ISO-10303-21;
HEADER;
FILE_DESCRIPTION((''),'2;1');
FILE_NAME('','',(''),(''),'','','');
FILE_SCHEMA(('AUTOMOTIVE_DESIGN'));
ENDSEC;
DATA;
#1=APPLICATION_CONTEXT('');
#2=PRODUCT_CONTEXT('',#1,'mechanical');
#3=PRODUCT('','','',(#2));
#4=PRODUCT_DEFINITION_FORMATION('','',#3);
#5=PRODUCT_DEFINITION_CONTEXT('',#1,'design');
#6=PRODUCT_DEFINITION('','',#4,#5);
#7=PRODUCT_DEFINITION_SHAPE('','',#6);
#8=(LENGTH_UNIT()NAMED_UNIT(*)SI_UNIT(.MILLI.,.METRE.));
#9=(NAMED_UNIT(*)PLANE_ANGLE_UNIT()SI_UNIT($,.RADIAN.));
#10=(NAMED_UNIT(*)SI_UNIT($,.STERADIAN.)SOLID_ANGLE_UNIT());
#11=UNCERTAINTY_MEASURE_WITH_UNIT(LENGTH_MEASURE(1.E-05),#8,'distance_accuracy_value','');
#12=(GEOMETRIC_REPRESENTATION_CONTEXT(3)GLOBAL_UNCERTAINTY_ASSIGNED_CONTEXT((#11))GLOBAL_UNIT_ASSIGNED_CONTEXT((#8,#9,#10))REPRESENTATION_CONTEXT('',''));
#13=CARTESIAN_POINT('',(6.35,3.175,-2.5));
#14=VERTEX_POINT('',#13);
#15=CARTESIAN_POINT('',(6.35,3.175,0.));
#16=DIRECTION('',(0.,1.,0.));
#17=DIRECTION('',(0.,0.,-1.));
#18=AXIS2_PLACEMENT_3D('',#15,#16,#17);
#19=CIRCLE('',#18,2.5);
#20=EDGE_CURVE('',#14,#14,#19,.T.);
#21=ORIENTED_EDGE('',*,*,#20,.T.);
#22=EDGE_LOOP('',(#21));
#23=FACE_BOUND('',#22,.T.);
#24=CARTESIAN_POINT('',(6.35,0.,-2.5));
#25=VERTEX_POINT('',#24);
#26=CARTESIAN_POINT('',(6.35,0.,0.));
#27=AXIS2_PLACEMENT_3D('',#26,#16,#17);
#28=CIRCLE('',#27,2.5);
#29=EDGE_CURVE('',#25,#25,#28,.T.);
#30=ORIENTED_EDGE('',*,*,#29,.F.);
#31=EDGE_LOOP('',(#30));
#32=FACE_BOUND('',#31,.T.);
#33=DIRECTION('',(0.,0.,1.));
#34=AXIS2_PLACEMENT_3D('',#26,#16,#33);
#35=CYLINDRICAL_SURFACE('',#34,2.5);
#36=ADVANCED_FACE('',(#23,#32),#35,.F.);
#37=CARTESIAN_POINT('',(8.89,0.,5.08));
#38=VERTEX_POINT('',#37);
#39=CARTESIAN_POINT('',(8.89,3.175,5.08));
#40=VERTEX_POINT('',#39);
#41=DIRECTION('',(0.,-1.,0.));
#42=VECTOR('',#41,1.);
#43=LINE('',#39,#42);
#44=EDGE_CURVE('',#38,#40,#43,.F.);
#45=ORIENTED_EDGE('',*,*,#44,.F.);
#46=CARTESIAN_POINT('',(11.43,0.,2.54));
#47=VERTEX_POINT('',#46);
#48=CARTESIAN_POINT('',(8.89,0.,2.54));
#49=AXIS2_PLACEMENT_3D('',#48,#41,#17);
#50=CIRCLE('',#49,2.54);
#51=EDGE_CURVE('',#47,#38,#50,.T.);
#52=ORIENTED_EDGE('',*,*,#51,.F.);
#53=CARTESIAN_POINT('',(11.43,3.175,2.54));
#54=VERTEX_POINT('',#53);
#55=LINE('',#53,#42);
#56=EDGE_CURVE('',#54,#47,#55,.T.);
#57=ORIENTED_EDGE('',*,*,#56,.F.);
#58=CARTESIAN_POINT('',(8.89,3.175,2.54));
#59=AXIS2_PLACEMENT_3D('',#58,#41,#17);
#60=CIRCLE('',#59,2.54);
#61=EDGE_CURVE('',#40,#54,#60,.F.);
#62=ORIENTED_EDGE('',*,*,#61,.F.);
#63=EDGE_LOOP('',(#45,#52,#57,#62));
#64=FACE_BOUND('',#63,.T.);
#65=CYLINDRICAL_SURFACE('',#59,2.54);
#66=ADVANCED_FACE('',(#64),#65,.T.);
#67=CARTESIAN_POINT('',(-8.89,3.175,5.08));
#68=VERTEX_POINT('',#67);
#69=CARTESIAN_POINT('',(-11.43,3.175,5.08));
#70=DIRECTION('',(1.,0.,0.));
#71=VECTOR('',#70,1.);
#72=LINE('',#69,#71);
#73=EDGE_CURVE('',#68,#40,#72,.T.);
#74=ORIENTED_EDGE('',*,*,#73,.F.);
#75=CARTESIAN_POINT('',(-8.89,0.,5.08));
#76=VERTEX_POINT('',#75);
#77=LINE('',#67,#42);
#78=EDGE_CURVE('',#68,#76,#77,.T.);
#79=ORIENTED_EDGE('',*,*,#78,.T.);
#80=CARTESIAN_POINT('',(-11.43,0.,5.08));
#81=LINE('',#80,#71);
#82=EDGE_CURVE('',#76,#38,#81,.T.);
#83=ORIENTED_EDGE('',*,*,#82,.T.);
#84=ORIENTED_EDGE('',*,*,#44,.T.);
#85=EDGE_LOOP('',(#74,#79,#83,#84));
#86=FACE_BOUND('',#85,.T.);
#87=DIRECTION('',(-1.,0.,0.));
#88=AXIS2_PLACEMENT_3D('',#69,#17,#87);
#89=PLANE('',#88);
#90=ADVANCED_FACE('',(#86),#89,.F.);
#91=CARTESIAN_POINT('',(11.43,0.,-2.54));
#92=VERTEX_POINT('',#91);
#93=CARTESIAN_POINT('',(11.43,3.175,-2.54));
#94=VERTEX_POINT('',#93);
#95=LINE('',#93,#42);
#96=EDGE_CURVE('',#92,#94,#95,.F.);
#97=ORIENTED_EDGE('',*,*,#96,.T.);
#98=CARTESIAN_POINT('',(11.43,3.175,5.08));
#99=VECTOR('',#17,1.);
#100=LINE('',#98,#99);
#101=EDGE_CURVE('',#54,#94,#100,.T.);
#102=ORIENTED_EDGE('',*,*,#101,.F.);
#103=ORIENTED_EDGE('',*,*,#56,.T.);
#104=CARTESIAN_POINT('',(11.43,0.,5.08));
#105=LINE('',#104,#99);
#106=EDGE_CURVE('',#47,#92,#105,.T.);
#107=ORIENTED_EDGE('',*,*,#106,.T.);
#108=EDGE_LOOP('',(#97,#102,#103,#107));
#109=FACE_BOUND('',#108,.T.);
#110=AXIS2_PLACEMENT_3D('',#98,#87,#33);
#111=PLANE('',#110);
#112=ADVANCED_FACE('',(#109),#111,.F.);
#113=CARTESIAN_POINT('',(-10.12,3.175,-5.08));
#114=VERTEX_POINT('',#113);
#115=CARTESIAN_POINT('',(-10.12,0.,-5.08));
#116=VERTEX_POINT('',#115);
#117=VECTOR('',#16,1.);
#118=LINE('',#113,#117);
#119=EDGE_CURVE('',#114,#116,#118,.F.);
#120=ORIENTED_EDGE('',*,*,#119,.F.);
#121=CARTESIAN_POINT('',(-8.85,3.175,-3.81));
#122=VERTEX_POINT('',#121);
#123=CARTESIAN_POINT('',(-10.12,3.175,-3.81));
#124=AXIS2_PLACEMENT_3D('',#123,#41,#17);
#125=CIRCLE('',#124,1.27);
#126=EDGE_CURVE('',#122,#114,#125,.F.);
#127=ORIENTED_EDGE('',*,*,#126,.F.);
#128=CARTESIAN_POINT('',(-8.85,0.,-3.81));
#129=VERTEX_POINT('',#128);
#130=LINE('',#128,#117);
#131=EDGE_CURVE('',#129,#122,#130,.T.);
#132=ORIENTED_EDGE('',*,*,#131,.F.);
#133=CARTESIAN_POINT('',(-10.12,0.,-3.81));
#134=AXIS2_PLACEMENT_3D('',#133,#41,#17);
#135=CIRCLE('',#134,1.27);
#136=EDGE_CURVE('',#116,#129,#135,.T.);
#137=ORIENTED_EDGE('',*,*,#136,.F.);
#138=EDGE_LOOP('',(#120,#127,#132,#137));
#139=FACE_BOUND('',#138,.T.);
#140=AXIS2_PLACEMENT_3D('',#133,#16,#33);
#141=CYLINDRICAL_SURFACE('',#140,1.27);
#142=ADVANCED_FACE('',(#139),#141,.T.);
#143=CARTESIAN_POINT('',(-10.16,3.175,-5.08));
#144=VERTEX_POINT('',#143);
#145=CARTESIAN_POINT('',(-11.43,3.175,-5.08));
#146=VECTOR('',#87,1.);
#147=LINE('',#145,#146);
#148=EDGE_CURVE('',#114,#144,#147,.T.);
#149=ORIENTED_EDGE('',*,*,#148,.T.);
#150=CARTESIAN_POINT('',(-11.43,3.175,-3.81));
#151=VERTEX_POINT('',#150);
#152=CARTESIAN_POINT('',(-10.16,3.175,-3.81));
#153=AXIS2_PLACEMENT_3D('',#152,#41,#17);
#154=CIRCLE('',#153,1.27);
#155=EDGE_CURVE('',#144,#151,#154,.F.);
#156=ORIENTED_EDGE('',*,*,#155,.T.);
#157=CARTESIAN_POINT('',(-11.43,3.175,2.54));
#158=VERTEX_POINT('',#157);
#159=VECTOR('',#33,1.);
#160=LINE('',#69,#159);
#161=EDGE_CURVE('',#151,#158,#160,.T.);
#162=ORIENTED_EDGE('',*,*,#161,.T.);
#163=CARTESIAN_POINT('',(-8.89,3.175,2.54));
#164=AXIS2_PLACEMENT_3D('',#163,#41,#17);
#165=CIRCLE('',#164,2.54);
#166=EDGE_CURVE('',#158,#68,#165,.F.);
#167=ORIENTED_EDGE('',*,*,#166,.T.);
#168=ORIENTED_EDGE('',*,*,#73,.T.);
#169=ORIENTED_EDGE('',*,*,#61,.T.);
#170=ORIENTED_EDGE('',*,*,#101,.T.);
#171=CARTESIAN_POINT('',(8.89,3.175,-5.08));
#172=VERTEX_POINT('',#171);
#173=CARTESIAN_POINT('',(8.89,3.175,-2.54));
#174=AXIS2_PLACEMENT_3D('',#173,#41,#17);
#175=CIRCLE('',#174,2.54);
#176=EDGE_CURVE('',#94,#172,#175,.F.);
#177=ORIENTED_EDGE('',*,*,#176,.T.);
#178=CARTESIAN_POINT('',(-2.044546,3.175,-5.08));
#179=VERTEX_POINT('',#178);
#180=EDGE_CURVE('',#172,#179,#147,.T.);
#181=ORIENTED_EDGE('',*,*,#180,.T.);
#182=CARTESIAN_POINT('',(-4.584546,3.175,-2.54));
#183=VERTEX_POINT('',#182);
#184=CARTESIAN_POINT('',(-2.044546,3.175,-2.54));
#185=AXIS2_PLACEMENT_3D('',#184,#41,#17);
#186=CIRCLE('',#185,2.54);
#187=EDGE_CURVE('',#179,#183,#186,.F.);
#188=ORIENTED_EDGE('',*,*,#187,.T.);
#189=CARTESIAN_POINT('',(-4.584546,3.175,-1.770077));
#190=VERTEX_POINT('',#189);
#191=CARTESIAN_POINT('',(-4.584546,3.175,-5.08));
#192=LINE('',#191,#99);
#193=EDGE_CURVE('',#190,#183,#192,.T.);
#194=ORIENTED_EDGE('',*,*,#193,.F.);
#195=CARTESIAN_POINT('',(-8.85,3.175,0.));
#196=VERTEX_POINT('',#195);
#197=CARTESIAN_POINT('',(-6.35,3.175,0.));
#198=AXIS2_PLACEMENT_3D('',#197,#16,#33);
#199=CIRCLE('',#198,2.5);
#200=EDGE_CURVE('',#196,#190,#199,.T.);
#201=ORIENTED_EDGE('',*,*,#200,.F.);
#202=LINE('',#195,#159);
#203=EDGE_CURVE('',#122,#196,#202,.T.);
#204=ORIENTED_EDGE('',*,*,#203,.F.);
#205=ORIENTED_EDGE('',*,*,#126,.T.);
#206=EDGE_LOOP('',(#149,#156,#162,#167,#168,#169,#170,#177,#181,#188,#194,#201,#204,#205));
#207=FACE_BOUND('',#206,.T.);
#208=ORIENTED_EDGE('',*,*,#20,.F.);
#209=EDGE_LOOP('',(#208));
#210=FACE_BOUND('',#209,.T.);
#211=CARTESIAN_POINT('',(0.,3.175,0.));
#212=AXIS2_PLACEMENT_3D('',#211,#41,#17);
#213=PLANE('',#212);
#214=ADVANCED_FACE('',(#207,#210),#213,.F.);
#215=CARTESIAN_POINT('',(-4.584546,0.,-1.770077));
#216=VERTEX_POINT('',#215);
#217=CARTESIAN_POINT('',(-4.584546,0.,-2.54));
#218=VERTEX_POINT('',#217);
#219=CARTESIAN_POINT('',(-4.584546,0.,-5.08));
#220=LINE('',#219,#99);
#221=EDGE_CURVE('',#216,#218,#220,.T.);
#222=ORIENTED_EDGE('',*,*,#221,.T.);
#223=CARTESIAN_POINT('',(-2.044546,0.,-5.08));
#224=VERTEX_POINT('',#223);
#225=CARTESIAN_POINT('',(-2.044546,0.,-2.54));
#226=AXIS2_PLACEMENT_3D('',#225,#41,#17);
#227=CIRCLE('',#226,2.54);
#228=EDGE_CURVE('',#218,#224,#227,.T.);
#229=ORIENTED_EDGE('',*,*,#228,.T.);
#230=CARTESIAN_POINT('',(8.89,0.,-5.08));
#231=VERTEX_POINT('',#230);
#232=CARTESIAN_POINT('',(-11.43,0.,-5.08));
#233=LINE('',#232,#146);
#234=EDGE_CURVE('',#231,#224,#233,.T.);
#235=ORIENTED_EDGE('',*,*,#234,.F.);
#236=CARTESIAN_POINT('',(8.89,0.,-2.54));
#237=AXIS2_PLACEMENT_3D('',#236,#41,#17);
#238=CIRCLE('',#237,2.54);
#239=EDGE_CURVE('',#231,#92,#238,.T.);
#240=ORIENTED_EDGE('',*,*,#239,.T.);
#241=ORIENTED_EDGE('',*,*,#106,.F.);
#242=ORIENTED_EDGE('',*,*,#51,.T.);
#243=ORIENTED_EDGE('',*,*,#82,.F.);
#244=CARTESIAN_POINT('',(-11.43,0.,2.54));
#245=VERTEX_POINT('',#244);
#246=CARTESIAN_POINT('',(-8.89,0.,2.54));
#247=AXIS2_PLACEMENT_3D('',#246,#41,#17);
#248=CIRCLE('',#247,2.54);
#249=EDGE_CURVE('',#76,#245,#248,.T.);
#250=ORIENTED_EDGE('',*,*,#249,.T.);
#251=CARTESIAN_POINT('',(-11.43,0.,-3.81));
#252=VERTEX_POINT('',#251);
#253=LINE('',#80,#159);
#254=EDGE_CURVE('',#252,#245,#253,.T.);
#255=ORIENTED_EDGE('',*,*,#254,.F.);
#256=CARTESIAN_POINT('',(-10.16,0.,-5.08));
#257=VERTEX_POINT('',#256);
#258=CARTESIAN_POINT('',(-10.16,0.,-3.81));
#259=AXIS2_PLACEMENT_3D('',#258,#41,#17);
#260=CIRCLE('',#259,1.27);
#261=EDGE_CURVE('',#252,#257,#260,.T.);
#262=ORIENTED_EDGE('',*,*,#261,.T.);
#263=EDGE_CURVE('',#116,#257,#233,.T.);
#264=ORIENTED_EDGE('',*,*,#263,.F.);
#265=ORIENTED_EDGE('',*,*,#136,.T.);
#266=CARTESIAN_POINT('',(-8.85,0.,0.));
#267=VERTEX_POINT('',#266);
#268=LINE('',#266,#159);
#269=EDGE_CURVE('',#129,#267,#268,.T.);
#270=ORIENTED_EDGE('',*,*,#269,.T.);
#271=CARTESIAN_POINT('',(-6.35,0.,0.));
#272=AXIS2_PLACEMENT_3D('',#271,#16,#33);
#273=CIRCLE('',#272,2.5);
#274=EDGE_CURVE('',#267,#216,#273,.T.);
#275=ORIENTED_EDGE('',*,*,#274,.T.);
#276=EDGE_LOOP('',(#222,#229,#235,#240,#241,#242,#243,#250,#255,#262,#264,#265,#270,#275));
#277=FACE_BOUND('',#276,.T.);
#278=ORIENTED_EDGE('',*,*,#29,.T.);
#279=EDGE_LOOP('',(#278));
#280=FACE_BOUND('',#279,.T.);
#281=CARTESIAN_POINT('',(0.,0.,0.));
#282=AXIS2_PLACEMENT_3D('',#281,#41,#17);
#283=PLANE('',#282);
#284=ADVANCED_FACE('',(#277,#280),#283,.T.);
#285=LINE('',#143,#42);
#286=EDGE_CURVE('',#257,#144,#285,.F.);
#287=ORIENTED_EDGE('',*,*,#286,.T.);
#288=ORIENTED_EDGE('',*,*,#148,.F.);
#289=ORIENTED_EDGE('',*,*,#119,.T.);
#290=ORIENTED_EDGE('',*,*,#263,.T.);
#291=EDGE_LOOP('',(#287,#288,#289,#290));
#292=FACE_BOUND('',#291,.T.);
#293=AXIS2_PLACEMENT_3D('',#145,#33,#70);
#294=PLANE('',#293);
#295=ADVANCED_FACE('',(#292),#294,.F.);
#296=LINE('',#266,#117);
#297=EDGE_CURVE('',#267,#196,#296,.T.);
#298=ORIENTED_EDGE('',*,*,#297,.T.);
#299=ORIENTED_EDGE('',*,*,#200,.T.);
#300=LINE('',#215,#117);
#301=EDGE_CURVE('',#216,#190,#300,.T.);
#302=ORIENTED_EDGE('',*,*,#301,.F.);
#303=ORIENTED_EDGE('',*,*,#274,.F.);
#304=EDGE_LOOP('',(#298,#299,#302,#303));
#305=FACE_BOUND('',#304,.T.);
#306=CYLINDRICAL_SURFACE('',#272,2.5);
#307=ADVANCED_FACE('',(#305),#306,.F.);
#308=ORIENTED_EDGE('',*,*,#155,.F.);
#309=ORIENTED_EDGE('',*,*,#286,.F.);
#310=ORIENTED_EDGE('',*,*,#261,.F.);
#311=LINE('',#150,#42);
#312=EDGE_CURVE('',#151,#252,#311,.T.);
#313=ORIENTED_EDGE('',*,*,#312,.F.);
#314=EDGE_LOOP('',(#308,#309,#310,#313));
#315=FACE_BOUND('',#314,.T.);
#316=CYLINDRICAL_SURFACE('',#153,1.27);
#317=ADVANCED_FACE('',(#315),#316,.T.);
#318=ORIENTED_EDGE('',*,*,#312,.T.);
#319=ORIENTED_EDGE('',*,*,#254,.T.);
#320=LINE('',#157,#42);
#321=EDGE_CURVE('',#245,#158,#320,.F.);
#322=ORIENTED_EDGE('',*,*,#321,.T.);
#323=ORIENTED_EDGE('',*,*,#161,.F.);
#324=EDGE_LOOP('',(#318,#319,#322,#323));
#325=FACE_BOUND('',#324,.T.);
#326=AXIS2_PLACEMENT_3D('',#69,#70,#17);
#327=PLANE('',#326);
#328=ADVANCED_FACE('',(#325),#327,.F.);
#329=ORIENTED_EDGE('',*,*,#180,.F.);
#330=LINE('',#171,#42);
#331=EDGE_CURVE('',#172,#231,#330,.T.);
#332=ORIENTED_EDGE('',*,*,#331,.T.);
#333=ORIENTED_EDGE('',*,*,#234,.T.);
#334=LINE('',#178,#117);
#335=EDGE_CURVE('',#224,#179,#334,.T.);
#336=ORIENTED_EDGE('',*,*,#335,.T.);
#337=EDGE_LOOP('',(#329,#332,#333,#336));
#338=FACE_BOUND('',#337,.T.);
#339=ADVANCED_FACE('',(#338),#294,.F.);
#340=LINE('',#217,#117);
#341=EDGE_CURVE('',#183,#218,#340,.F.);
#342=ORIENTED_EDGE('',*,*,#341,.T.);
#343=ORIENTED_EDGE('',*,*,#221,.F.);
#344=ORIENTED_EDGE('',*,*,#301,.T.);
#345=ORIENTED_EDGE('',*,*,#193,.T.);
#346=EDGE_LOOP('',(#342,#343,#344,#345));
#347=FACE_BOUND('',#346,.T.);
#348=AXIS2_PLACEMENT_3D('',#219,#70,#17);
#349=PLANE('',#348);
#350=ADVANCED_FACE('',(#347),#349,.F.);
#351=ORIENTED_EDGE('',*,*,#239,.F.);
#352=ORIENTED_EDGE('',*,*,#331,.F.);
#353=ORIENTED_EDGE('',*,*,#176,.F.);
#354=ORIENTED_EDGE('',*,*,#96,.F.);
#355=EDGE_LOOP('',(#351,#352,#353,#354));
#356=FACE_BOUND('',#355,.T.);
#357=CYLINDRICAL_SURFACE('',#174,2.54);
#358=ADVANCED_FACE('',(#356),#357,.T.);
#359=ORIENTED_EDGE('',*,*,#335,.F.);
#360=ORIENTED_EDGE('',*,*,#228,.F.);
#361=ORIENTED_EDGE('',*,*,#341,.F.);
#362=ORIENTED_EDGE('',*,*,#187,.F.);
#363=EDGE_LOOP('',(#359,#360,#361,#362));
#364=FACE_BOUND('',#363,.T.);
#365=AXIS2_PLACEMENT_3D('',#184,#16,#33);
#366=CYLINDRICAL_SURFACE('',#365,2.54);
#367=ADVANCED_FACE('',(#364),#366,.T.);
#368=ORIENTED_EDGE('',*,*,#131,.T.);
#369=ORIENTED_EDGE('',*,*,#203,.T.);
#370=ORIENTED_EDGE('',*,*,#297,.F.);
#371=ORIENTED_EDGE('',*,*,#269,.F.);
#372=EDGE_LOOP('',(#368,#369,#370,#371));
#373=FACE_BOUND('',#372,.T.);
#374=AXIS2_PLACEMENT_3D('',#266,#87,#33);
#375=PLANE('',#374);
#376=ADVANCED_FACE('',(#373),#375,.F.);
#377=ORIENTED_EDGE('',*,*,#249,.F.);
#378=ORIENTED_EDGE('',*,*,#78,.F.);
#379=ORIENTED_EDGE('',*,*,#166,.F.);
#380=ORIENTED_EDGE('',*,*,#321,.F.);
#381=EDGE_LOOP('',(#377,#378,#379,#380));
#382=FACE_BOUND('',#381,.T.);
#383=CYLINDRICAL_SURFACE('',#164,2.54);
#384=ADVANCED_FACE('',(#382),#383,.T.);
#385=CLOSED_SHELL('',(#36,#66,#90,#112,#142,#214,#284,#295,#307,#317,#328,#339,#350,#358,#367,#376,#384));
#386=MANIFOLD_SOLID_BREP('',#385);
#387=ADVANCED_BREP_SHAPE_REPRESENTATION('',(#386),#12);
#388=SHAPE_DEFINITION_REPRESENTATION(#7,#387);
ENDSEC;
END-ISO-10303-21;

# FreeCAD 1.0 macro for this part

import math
import FreeCAD as App
import Part
import Sketcher
from FreeCAD import Vector
Q = App.Units.Quantity


def edges_at(feature, points):
    """Names of the edges that pass closest to the given points."""
    edges = feature.Shape.Edges
    near = lambda p: min(range(len(edges)), key=lambda i: edges[i].distToShape(Part.Vertex(*p))[0])
    return sorted({f"Edge{near(p) + 1}" for p in points})


def add_polygon(sketch, points):
    """Adds a closed chain of lines whose ends are joined by coincident constraints."""
    first, n = sketch.GeometryCount, len(points)
    for a, b in zip(points, points[1:] + points[:1]):
        sketch.addGeometry(Part.LineSegment(App.Vector(*a, 0), App.Vector(*b, 0)), False)
    for i in range(n):
        sketch.addConstraint(Sketcher.Constraint("Coincident", first + i, 2, first + (i + 1) % n, 1))

doc = App.newDocument("Part")
body = doc.addObject("PartDesign::Body", "Body")

sketch1 = body.newObject("Sketcher::SketchObject", "Sketch")
sketch1.AttachmentSupport = (doc.getObject("XZ_Plane"), [""])
sketch1.MapMode = "FlatFace"
add_polygon(sketch1, [(-11, -5), (-11, 5), (11, 5), (11, -5)])
sketch1.addConstraint(Sketcher.Constraint("Vertical", 0))
sketch1.addConstraint(Sketcher.Constraint("Horizontal", 1))
sketch1.addConstraint(Sketcher.Constraint("Vertical", 2))
sketch1.addConstraint(Sketcher.Constraint("Horizontal", 3))
sketch1.addConstraint(Sketcher.Constraint("Symmetric", 0, 2, 2, 2, -1, 1))
sketch1.addConstraint(Sketcher.Constraint("DistanceX", 1, 1, 1, 2, Q("0.9 in")))
sketch1.addConstraint(Sketcher.Constraint("DistanceY", 0, 1, 0, 2, Q("0.4 in")))
pad1 = body.newObject("PartDesign::Pad", "Pad")
pad1.Profile = sketch1
pad1.Length = Q("0.125 in")
pad1.Reversed = True

sketch2 = body.newObject("Sketcher::SketchObject", "Sketch001")
sketch2.AttachmentSupport = (doc.getObject("XZ_Plane"), [""])
sketch2.MapMode = "FlatFace"
sketch2.AttachmentOffset = App.Placement(Vector(0, 0, -0.125 * 25.4), App.Rotation())
sketch2.addGeometry(Part.Circle(Vector(-6.3, 0, 0), Vector(0, 0, 1), 2.5), False)
sketch2.addGeometry(Part.Circle(Vector(6.3, 0, 0), Vector(0, 0, 1), 2.5), False)
sketch2.addConstraint(Sketcher.Constraint("Equal", 0, 1))
sketch2.addConstraint(Sketcher.Constraint("Symmetric", 0, 3, 1, 3, -1, 1))
sketch2.addConstraint(Sketcher.Constraint("PointOnObject", 0, 3, -1))
sketch2.addConstraint(Sketcher.Constraint("DistanceX", 0, 3, 1, 3, Q("0.5 in")))
sketch2.addConstraint(Sketcher.Constraint("Diameter", 0, Q("5 mm")))
pocket1 = body.newObject("PartDesign::Pocket", "Pocket")
pocket1.Profile = sketch2
pocket1.Type = "ThroughAll"
pocket1.Reversed = True

sketch3 = body.newObject("Sketcher::SketchObject", "Sketch002")
sketch3.AttachmentSupport = (doc.getObject("XZ_Plane"), [""])
sketch3.MapMode = "FlatFace"
sketch3.AttachmentOffset = App.Placement(Vector(0, 0, -0.125 * 25.4), App.Rotation())
sketch3.addGeometry(Part.LineSegment(Vector(-8.8, -5.1, 0), Vector(-8.8, 0, 0)), False)
sketch3.addGeometry(Part.ArcOfCircle(Part.Circle(Vector(-6.3, 0, 0), Vector(0, 0, 1), 2.5), math.radians(180), math.radians(315)), False)
sketch3.addGeometry(Part.LineSegment(Vector(-4.6, -1.8, 0), Vector(-4.6, -5.1, 0)), False)
sketch3.addGeometry(Part.LineSegment(Vector(-4.6, -5.1, 0), Vector(-8.8, -5.1, 0)), False)
sketch3.addConstraint(Sketcher.Constraint("Tangent", 0, 2, 1, 1))
sketch3.addConstraint(Sketcher.Constraint("Coincident", 1, 2, 2, 1))
sketch3.addConstraint(Sketcher.Constraint("Coincident", 2, 2, 3, 1))
sketch3.addConstraint(Sketcher.Constraint("Coincident", 3, 2, 0, 1))
sketch3.addConstraint(Sketcher.Constraint("Vertical", 0))
sketch3.addConstraint(Sketcher.Constraint("Vertical", 2))
sketch3.addConstraint(Sketcher.Constraint("Horizontal", 3))
sketch3.addConstraint(Sketcher.Constraint("PointOnObject", 1, 3, -1))
sketch3.addConstraint(Sketcher.Constraint("DistanceY", 0, 1, 0, 2, Q("0.2 in")))
sketch3.addConstraint(Sketcher.Constraint("DistanceX", 1, 3, -1, 1, Q("0.25 in")))
sketch3.addConstraint(Sketcher.Constraint("Radius", 1, Q("2.5 mm")))
sketch3.addConstraint(Sketcher.Constraint("DistanceX", 3, 2, 3, 1, Q("4.265454 mm")))
pocket2 = body.newObject("PartDesign::Pocket", "Pocket001")
pocket2.Profile = sketch3
pocket2.Type = "ThroughAll"
pocket2.Reversed = True
doc.recompute()

fillet = body.newObject("PartDesign::Fillet", "Fillet")
fillet.Base = (pocket2, edges_at(pocket2, [
    (-4.585, 1.587, -5.08),
    (11.43, 1.587, 5.08),
    (-11.43, 1.587, 5.08),
    (11.43, 1.587, -5.08),
]))
fillet.Radius = Q("0.1 in")
doc.recompute()

fillet2 = body.newObject("PartDesign::Fillet", "Fillet001")
fillet2.Base = (fillet, edges_at(fillet, [(-8.85, 1.587, -5.08), (-11.43, 1.587, -5.08)]))
fillet2.Radius = Q("0.05 in")

doc.recompute()
